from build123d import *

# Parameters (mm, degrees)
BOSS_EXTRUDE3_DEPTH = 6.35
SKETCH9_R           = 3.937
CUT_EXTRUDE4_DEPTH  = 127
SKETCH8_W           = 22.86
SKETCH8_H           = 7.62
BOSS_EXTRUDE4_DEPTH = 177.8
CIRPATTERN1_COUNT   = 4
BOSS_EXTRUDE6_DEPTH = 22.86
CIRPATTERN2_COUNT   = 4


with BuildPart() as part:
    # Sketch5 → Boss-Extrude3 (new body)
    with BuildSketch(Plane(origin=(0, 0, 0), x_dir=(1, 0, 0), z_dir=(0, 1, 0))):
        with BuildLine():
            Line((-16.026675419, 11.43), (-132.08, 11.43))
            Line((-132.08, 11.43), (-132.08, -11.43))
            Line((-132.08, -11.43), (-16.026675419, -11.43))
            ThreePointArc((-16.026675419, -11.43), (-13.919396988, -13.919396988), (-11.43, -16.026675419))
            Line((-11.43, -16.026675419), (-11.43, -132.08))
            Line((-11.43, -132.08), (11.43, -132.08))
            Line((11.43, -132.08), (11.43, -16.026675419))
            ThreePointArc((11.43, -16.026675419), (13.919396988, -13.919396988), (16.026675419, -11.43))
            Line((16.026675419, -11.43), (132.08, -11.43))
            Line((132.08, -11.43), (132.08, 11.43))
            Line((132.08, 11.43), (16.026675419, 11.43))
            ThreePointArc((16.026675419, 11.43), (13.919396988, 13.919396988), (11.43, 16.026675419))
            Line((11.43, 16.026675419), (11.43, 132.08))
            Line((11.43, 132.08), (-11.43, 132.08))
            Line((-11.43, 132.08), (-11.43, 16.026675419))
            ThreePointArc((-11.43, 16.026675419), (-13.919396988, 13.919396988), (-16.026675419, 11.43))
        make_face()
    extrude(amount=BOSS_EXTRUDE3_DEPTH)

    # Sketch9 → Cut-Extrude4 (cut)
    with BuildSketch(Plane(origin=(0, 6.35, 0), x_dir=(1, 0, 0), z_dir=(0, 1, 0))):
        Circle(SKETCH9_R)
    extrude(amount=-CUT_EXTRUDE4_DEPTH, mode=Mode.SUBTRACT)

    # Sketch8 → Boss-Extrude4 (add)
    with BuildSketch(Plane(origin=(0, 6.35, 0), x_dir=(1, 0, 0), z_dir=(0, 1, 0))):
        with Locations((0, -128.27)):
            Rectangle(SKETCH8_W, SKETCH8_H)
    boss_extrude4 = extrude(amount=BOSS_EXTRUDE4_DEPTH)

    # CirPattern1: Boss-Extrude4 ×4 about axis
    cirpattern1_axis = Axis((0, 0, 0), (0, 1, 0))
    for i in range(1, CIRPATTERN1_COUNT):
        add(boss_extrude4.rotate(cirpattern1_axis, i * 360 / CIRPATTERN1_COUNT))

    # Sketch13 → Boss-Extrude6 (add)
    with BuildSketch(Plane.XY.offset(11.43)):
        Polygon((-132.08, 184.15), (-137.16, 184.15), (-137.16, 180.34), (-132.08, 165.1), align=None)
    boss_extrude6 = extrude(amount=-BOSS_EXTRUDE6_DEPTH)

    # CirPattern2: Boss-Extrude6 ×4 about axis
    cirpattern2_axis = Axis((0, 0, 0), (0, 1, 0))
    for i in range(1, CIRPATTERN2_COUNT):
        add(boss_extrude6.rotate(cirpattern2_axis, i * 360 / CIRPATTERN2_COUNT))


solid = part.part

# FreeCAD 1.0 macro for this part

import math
import FreeCAD as App
import Part
import Sketcher

V = App.Vector
Q = App.Units.Quantity

doc = App.newDocument("Part")
body = doc.addObject("PartDesign::Body", "Body")

# Sketch on XZ plane
sketch1 = body.newObject("Sketcher::SketchObject", "Sketch")
sketch1.AttachmentSupport = (doc.getObject("XZ_Plane"), [""])
sketch1.MapMode = "FlatFace"
sketch1.addGeometry(Part.LineSegment(V(-16, -11, 0), V(-132, -11, 0)), False)
sketch1.addGeometry(Part.LineSegment(V(-132, -11, 0), V(-132, 11, 0)), False)
sketch1.addGeometry(Part.LineSegment(V(-132, 11, 0), V(-16, 11, 0)), False)
sketch1.addGeometry(Part.ArcOfCircle(Part.Circle(V(0, 0, 0), V(0, 0, 1), 20), math.radians(125.5), math.radians(144.5)), False)
sketch1.addGeometry(Part.LineSegment(V(-11, 16, 0), V(-11, 132, 0)), False)
sketch1.addGeometry(Part.LineSegment(V(-11, 132, 0), V(11, 132, 0)), False)
sketch1.addGeometry(Part.LineSegment(V(11, 132, 0), V(11, 16, 0)), False)
sketch1.addGeometry(Part.ArcOfCircle(Part.Circle(V(0, 0, 0), V(0, 0, 1), 20), math.radians(35.5), math.radians(54.5)), False)
sketch1.addGeometry(Part.LineSegment(V(16, 11, 0), V(132, 11, 0)), False)
sketch1.addGeometry(Part.LineSegment(V(132, 11, 0), V(132, -11, 0)), False)
sketch1.addGeometry(Part.LineSegment(V(132, -11, 0), V(16, -11, 0)), False)
sketch1.addGeometry(Part.ArcOfCircle(Part.Circle(V(0, 0, 0), V(0, 0, 1), 20), math.radians(-54.5), math.radians(-35.5)), False)
sketch1.addGeometry(Part.LineSegment(V(11, -16, 0), V(11, -132, 0)), False)
sketch1.addGeometry(Part.LineSegment(V(11, -132, 0), V(-11, -132, 0)), False)
sketch1.addGeometry(Part.LineSegment(V(-11, -132, 0), V(-11, -16, 0)), False)
sketch1.addGeometry(Part.ArcOfCircle(Part.Circle(V(0, 0, 0), V(0, 0, 1), 20), math.radians(-144.5), math.radians(-125.5)), False)
sketch1.addConstraint(Sketcher.Constraint("Coincident", 0, 2, 1, 1))
sketch1.addConstraint(Sketcher.Constraint("Coincident", 1, 2, 2, 1))
sketch1.addConstraint(Sketcher.Constraint("Coincident", 2, 2, 3, 2))
sketch1.addConstraint(Sketcher.Constraint("Coincident", 3, 1, 4, 1))
sketch1.addConstraint(Sketcher.Constraint("Coincident", 4, 2, 5, 1))
sketch1.addConstraint(Sketcher.Constraint("Coincident", 5, 2, 6, 1))
sketch1.addConstraint(Sketcher.Constraint("Coincident", 6, 2, 7, 2))
sketch1.addConstraint(Sketcher.Constraint("Coincident", 7, 1, 8, 1))
sketch1.addConstraint(Sketcher.Constraint("Coincident", 8, 2, 9, 1))
sketch1.addConstraint(Sketcher.Constraint("Coincident", 9, 2, 10, 1))
sketch1.addConstraint(Sketcher.Constraint("Coincident", 10, 2, 11, 2))
sketch1.addConstraint(Sketcher.Constraint("Coincident", 11, 1, 12, 1))
sketch1.addConstraint(Sketcher.Constraint("Coincident", 12, 2, 13, 1))
sketch1.addConstraint(Sketcher.Constraint("Coincident", 13, 2, 14, 1))
sketch1.addConstraint(Sketcher.Constraint("Coincident", 14, 2, 15, 2))
sketch1.addConstraint(Sketcher.Constraint("Coincident", 15, 1, 0, 1))
sketch1.addConstraint(Sketcher.Constraint("Horizontal", 0))
sketch1.addConstraint(Sketcher.Constraint("Vertical", 1))
sketch1.addConstraint(Sketcher.Constraint("Horizontal", 2))
sketch1.addConstraint(Sketcher.Constraint("Vertical", 4))
sketch1.addConstraint(Sketcher.Constraint("Horizontal", 5))
sketch1.addConstraint(Sketcher.Constraint("Vertical", 6))
sketch1.addConstraint(Sketcher.Constraint("Horizontal", 8))
sketch1.addConstraint(Sketcher.Constraint("Vertical", 9))
sketch1.addConstraint(Sketcher.Constraint("Horizontal", 10))
sketch1.addConstraint(Sketcher.Constraint("Vertical", 12))
sketch1.addConstraint(Sketcher.Constraint("Horizontal", 13))
sketch1.addConstraint(Sketcher.Constraint("Vertical", 14))
sketch1.addConstraint(Sketcher.Constraint("Coincident", 3, 3, -1, 1))
sketch1.addConstraint(Sketcher.Constraint("Coincident", 7, 3, -1, 1))
sketch1.addConstraint(Sketcher.Constraint("Coincident", 11, 3, -1, 1))
sketch1.addConstraint(Sketcher.Constraint("Coincident", 15, 3, -1, 1))
sketch1.addConstraint(Sketcher.Constraint("Equal", 3, 7))
sketch1.addConstraint(Sketcher.Constraint("Equal", 7, 11))
sketch1.addConstraint(Sketcher.Constraint("Equal", 11, 15))
sketch1.addConstraint(Sketcher.Constraint("Symmetric", 0, 2, 8, 2, -1, 1))
sketch1.addConstraint(Sketcher.Constraint("Symmetric", 4, 2, 12, 2, -1, 1))
sketch1.addConstraint(Sketcher.Constraint("Horizontal", 3, 1, 6, 2))
sketch1.addConstraint(Sketcher.Constraint("Horizontal", 2, 2, 7, 1))
sketch1.addConstraint(Sketcher.Constraint("Horizontal", 0, 2, 9, 2))
sketch1.addConstraint(Sketcher.Constraint("Horizontal", 11, 1, 14, 2))
sketch1.addConstraint(Sketcher.Constraint("Equal", 13, 1))
sketch1.addConstraint(Sketcher.Constraint("Equal", 10, 4))
sketch1.addConstraint(Sketcher.Constraint("DistanceX", 5, 1, 5, 2, Q("0.9 in")))
sketch1.addConstraint(Sketcher.Constraint("Radius", 3, Q("0.775 in")))
sketch1.addConstraint(Sketcher.Constraint("DistanceX", 0, 2, -1, 1, Q("5.2 in")))
pad1 = body.newObject("PartDesign::Pad", "Pad")
pad1.Profile = sketch1
pad1.Length = Q("0.25 in")
pad1.Reversed = True

# Sketch on XZ plane
sketch2 = body.newObject("Sketcher::SketchObject", "Sketch001")
sketch2.AttachmentSupport = (doc.getObject("XZ_Plane"), [""])
sketch2.MapMode = "FlatFace"
sketch2.AttachmentOffset = App.Placement(V(0, 0, -0.25 * 25.4), App.Rotation())
sketch2.addGeometry(Part.Circle(V(0, 0, 0), V(0, 0, 1), 3.9), False)
sketch2.addConstraint(Sketcher.Constraint("Coincident", 0, 3, -1, 1))
sketch2.addConstraint(Sketcher.Constraint("Diameter", 0, Q("0.31 in")))
pocket1 = body.newObject("PartDesign::Pocket", "Pocket")
pocket1.Profile = sketch2
pocket1.Length = Q("5 in")
pocket1.Reversed = True

# Sketch on XZ plane
sketch3 = body.newObject("Sketcher::SketchObject", "Sketch002")
sketch3.AttachmentSupport = (doc.getObject("XZ_Plane"), [""])
sketch3.MapMode = "FlatFace"
sketch3.AttachmentOffset = App.Placement(V(0, 0, -0.25 * 25.4), App.Rotation())
sketch3.addGeometry(Part.LineSegment(V(-11, 124, 0), V(-11, 132, 0)), False)
sketch3.addGeometry(Part.LineSegment(V(-11, 132, 0), V(11, 132, 0)), False)
sketch3.addGeometry(Part.LineSegment(V(11, 132, 0), V(11, 124, 0)), False)
sketch3.addGeometry(Part.LineSegment(V(11, 124, 0), V(-11, 124, 0)), False)
sketch3.addConstraint(Sketcher.Constraint("Coincident", 0, 2, 1, 1))
sketch3.addConstraint(Sketcher.Constraint("Coincident", 1, 2, 2, 1))
sketch3.addConstraint(Sketcher.Constraint("Coincident", 2, 2, 3, 1))
sketch3.addConstraint(Sketcher.Constraint("Coincident", 3, 2, 0, 1))
sketch3.addConstraint(Sketcher.Constraint("Vertical", 0))
sketch3.addConstraint(Sketcher.Constraint("Horizontal", 1))
sketch3.addConstraint(Sketcher.Constraint("Vertical", 2))
sketch3.addConstraint(Sketcher.Constraint("Horizontal", 3))
sketch3.addConstraint(Sketcher.Constraint("DistanceX", 1, 1, 1, 2, Q("0.9 in")))
sketch3.addConstraint(Sketcher.Constraint("DistanceY", 0, 1, 0, 2, Q("0.3 in")))
sketch3.addConstraint(Sketcher.Constraint("DistanceY", -1, 1, 0, 2, Q("5.2 in")))
sketch3.addConstraint(Sketcher.Constraint("DistanceX", 0, 2, -1, 1, Q("0.45 in")))
pad2 = body.newObject("PartDesign::Pad", "Pad001")
pad2.Profile = sketch3
pad2.Length = Q("7 in")
pad2.Reversed = True
doc.recompute()

polarpattern = body.newObject("PartDesign::PolarPattern", "PolarPattern")
polarpattern.Originals = [pad2]
polarpattern.Axis = (doc.getObject("Y_Axis"), [""])
polarpattern.Angle = 360
polarpattern.Occurrences = 4
body.Tip = polarpattern

# Sketch on XY plane
sketch4 = body.newObject("Sketcher::SketchObject", "Sketch003")
sketch4.AttachmentSupport = (doc.getObject("XY_Plane"), [""])
sketch4.MapMode = "FlatFace"
sketch4.AttachmentOffset = App.Placement(V(0, 0, 0.45 * 25.4), App.Rotation())
sketch4.addGeometry(Part.LineSegment(V(-132.1, 184.2, 0), V(-137.2, 184.2, 0)), False)
sketch4.addGeometry(Part.LineSegment(V(-137.2, 184.2, 0), V(-137.2, 180.3, 0)), False)
sketch4.addGeometry(Part.LineSegment(V(-137.2, 180.3, 0), V(-132.1, 165.1, 0)), False)
sketch4.addGeometry(Part.LineSegment(V(-132.1, 165.1, 0), V(-132.1, 184.2, 0)), False)
sketch4.addConstraint(Sketcher.Constraint("Coincident", 0, 2, 1, 1))
sketch4.addConstraint(Sketcher.Constraint("Coincident", 1, 2, 2, 1))
sketch4.addConstraint(Sketcher.Constraint("Coincident", 2, 2, 3, 1))
sketch4.addConstraint(Sketcher.Constraint("Coincident", 3, 2, 0, 1))
sketch4.addConstraint(Sketcher.Constraint("Horizontal", 0))
sketch4.addConstraint(Sketcher.Constraint("Vertical", 1))
sketch4.addConstraint(Sketcher.Constraint("Vertical", 3))
sketch4.addConstraint(Sketcher.Constraint("DistanceX", 0, 2, 0, 1, Q("0.2 in")))
sketch4.addConstraint(Sketcher.Constraint("DistanceY", 1, 2, 1, 1, Q("0.15 in")))
sketch4.addConstraint(Sketcher.Constraint("DistanceY", 3, 1, 3, 2, Q("0.75 in")))
sketch4.addConstraint(Sketcher.Constraint("DistanceX", 0, 2, -1, 1, Q("5.4 in")))
sketch4.addConstraint(Sketcher.Constraint("DistanceY", -1, 1, 1, 2, Q("7.1 in")))
pad3 = body.newObject("PartDesign::Pad", "Pad002")
pad3.Profile = sketch4
pad3.Length = Q("0.9 in")
pad3.Reversed = True
doc.recompute()

polarpattern2 = body.newObject("PartDesign::PolarPattern", "PolarPattern001")
polarpattern2.Originals = [pad3]
polarpattern2.Axis = (doc.getObject("Y_Axis"), [""])
polarpattern2.Angle = 360
polarpattern2.Occurrences = 4
body.Tip = polarpattern2

doc.recompute()
